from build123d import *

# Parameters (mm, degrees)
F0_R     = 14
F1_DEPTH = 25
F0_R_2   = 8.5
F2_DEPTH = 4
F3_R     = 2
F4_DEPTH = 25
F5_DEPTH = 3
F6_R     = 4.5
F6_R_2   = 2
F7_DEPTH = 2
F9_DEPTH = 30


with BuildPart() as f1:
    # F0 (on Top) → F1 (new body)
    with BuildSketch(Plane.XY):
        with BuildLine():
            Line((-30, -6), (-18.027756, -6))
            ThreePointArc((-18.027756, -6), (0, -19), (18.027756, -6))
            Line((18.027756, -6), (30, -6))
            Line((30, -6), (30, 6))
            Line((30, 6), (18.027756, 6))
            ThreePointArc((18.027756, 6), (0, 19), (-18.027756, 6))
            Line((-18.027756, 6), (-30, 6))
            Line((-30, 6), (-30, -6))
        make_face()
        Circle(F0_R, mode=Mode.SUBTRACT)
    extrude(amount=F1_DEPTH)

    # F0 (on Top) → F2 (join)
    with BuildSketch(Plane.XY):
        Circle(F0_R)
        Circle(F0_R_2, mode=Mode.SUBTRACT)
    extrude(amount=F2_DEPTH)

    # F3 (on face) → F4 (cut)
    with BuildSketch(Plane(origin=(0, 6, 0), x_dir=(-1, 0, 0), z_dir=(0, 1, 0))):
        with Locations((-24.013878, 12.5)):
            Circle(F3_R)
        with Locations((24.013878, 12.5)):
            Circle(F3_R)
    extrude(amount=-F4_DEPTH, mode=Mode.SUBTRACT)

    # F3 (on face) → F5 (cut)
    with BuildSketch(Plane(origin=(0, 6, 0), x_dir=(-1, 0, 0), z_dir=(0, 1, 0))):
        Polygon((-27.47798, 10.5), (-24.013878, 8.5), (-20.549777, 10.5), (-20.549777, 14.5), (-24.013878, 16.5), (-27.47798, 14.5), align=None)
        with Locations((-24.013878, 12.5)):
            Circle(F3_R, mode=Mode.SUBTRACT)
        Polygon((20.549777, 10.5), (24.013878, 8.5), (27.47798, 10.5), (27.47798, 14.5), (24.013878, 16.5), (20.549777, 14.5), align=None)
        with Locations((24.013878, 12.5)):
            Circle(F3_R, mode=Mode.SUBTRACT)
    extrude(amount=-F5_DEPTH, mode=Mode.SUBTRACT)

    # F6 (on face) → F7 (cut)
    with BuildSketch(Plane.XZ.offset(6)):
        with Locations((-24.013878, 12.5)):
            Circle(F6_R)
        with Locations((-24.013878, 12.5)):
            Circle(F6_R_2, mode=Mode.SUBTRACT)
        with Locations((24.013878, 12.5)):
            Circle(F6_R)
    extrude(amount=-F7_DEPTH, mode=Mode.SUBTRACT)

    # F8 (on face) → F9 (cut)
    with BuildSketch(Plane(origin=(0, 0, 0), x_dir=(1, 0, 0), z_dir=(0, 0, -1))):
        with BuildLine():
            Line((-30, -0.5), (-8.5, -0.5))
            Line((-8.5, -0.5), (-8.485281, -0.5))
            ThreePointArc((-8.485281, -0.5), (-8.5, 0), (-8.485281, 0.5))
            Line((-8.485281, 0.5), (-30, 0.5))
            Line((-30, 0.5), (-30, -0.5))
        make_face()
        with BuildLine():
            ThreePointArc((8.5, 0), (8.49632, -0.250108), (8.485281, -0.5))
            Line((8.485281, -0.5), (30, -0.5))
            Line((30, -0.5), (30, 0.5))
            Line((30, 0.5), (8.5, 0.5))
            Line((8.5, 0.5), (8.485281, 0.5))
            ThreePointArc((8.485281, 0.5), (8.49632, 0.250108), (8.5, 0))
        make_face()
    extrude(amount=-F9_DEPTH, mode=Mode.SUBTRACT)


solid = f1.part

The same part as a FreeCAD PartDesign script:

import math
import FreeCAD as App
import Part
import Sketcher
Q = App.Units.Quantity


def add_polygon(sketch, points):
    """Adds a closed chain of lines whose ends are joined by coincident constraints."""
    first, n = sketch.GeometryCount, len(points)
    for a, b in zip(points, points[1:] + points[:1]):
        sketch.addGeometry(Part.LineSegment(App.Vector(*a, 0), App.Vector(*b, 0)), False)
    for i in range(n):
        sketch.addConstraint(Sketcher.Constraint("Coincident", first + i, 2, first + (i + 1) % n, 1))

doc = App.newDocument("Part")
body = doc.addObject("PartDesign::Body", "Body")
body.AllowCompound = True

sketch1 = body.newObject("Sketcher::SketchObject", "Sketch")
sketch1.AttachmentSupport = (doc.getObject("XY_Plane"), [""])
sketch1.MapMode = "FlatFace"
sketch1.addGeometry([
    Part.LineSegment(App.Vector(-30, -6, 0), App.Vector(-18.027756, -6, 0)),
    Part.ArcOfCircle(Part.Circle(App.Vector(0, -0.000001, 0), App.Vector(0, 0, 1), 18.999999), math.radians(-161.591521), math.radians(-18.408479)),
    Part.LineSegment(App.Vector(18.027756, -6, 0), App.Vector(30, -6, 0)),
    Part.LineSegment(App.Vector(30, -6, 0), App.Vector(30, 6, 0)),
    Part.LineSegment(App.Vector(30, 6, 0), App.Vector(18.027756, 6, 0)),
    Part.ArcOfCircle(Part.Circle(App.Vector(0, 0.000001, 0), App.Vector(0, 0, 1), 18.999999), math.radians(18.408479), math.radians(161.591521)),
    Part.LineSegment(App.Vector(-18.027756, 6, 0), App.Vector(-30, 6, 0)),
    Part.LineSegment(App.Vector(-30, 6, 0), App.Vector(-30, -6, 0)),
    Part.Circle(App.Vector(0, 0, 0), App.Vector(0, 0, 1), 14),
], False)
sketch1.addConstraint([
    Sketcher.Constraint("Coincident", 0, 2, 1, 1),
    Sketcher.Constraint("Coincident", 1, 2, 2, 1),
    Sketcher.Constraint("Coincident", 2, 2, 3, 1),
    Sketcher.Constraint("Coincident", 3, 2, 4, 1),
    Sketcher.Constraint("Coincident", 4, 2, 5, 1),
    Sketcher.Constraint("Coincident", 5, 2, 6, 1),
    Sketcher.Constraint("Coincident", 6, 2, 7, 1),
    Sketcher.Constraint("Coincident", 7, 2, 0, 1),
    Sketcher.Constraint("Horizontal", 0),
    Sketcher.Constraint("Horizontal", 2),
    Sketcher.Constraint("Vertical", 3),
    Sketcher.Constraint("Horizontal", 4),
    Sketcher.Constraint("Horizontal", 6),
    Sketcher.Constraint("Vertical", 7),
    Sketcher.Constraint("Coincident", 1, 3, -1, 1),
    Sketcher.Constraint("Coincident", 5, 3, -1, 1),
    Sketcher.Constraint("Coincident", 8, 3, -1, 1),
    Sketcher.Constraint("Equal", 1, 5),
    Sketcher.Constraint("Symmetric", 2, 2, 6, 2, -1, 1),
    Sketcher.Constraint("Horizontal", 0, 2, 1, 2),
    Sketcher.Constraint("Horizontal", 4, 2, 5, 2),
    Sketcher.Constraint("Diameter", 8, 28.0),
    Sketcher.Constraint("Radius", 1, 18.999999),
    Sketcher.Constraint("DistanceY", 3, 1, 3, 2, 12.0),
    Sketcher.Constraint("DistanceX", -1, 1, 2, 2, 30.0),
])
pad1 = body.newObject("PartDesign::Pad", "Pad")
pad1.Profile = sketch1
pad1.Length = 25

sketch2 = body.newObject("Sketcher::SketchObject", "Sketch001")
sketch2.AttachmentSupport = (doc.getObject("XY_Plane"), [""])
sketch2.MapMode = "FlatFace"
sketch2.addGeometry([
    Part.Circle(App.Vector(0, 0, 0), App.Vector(0, 0, 1), 14),
    Part.Circle(App.Vector(0, 0, 0), App.Vector(0, 0, 1), 8.5),
], False)
sketch2.addConstraint([
    Sketcher.Constraint("Coincident", 0, 3, -1, 1),
    Sketcher.Constraint("Coincident", 1, 3, -1, 1),
    Sketcher.Constraint("Diameter", 0, 28.0),
    Sketcher.Constraint("Diameter", 1, 17.0),
])
pad2 = body.newObject("PartDesign::Pad", "Pad001")
pad2.Profile = sketch2
pad2.Length = 4

sketch3 = body.newObject("Sketcher::SketchObject", "Sketch002")
sketch3.AttachmentSupport = (doc.getObject("XZ_Plane"), [""])
sketch3.MapMode = "FlatFace"
sketch3.AttachmentOffset = App.Placement(App.Vector(0, 0, -6), App.Rotation())
sketch3.addGeometry([
    Part.Circle(App.Vector(24.013878, 12.5, 0), App.Vector(0, 0, 1), 2),
    Part.Circle(App.Vector(-24.013878, 12.5, 0), App.Vector(0, 0, 1), 2),
], False)
sketch3.addConstraint([
    Sketcher.Constraint("Equal", 0, 1),
    Sketcher.Constraint("Symmetric", 0, 3, 1, 3, -2),
    Sketcher.Constraint("Diameter", 0, 4.0),
    Sketcher.Constraint("DistanceY", -1, 1, 0, 3, 12.5),
    Sketcher.Constraint("DistanceX", -1, 1, 0, 3, 24.013878),
])
pocket1 = body.newObject("PartDesign::Pocket", "Pocket")
pocket1.Profile = sketch3
pocket1.Length = 25
pocket1.Reversed = True

sketch4 = body.newObject("Sketcher::SketchObject", "Sketch003")
sketch4.AttachmentSupport = (doc.getObject("XZ_Plane"), [""])
sketch4.MapMode = "FlatFace"
sketch4.AttachmentOffset = App.Placement(App.Vector(0, 0, -6), App.Rotation())
add_polygon(sketch4, [(27.47798, 10.5), (24.013878, 8.5), (20.549777, 10.5), (20.549777, 14.5), (24.013878, 16.5), (27.47798, 14.5)])
sketch4.addGeometry(Part.Circle(App.Vector(24.013878, 12.5, 0), App.Vector(0, 0, 1), 2), False)
add_polygon(sketch4, [(-20.549777, 10.5), (-24.013878, 8.5), (-27.47798, 10.5), (-27.47798, 14.5), (-24.013878, 16.5), (-20.549777, 14.5)])
sketch4.addGeometry(Part.Circle(App.Vector(-24.013878, 12.5, 0), App.Vector(0, 0, 1), 2), False)
sketch4.addConstraint([
    Sketcher.Constraint("Vertical", 2),
    Sketcher.Constraint("Vertical", 5),
    Sketcher.Constraint("Vertical", 9),
    Sketcher.Constraint("Vertical", 12),
    Sketcher.Constraint("Equal", 6, 13),
    Sketcher.Constraint("Symmetric", 6, 3, 13, 3, -2),
    Sketcher.Constraint("Symmetric", 0, 2, 7, 2, -2),
    Sketcher.Constraint("Symmetric", 5, 2, 8, 2, -2),
    Sketcher.Constraint("Symmetric", 3, 2, 10, 2, -2),
    Sketcher.Constraint("Symmetric", 2, 2, 11, 2, -2),
    Sketcher.Constraint("Parallel", 0, 3),
    Sketcher.Constraint("Parallel", 1, 4),
    Sketcher.Constraint("Parallel", 3, 7),
    Sketcher.Constraint("Parallel", 4, 8),
    Sketcher.Constraint("Parallel", 7, 10),
    Sketcher.Constraint("Horizontal", 2, 2, 4, 2),
    Sketcher.Constraint("Horizontal", 1, 2, 5, 2),
    Sketcher.Constraint("Vertical", 6, 3, 0, 2),
    Sketcher.Constraint("Diameter", 6, 4.0),
    Sketcher.Constraint("DistanceY", 2, 1, 2, 2, 4.0),
    Sketcher.Constraint("Angle", 0, Q("-150.000003 deg")),
    Sketcher.Constraint("Distance", 0, 4.0),
    Sketcher.Constraint("DistanceY", 0, 2, 6, 3, 4.0),
    Sketcher.Constraint("DistanceY", -1, 1, 6, 3, 12.5),
    Sketcher.Constraint("DistanceX", -1, 1, 4, 2, 27.47798),
])
pocket2 = body.newObject("PartDesign::Pocket", "Pocket001")
pocket2.Profile = sketch4
pocket2.Length = 3
pocket2.Reversed = True

sketch5 = body.newObject("Sketcher::SketchObject", "Sketch004")
sketch5.AttachmentSupport = (doc.getObject("XZ_Plane"), [""])
sketch5.MapMode = "FlatFace"
sketch5.AttachmentOffset = App.Placement(App.Vector(0, 0, 6), App.Rotation())
sketch5.addGeometry([
    Part.Circle(App.Vector(-24.013878, 12.5, 0), App.Vector(0, 0, 1), 4.5),
    Part.Circle(App.Vector(-24.013878, 12.5, 0), App.Vector(0, 0, 1), 2),
    Part.Circle(App.Vector(24.013878, 12.5, 0), App.Vector(0, 0, 1), 4.5),
], False)
sketch5.addConstraint([
    Sketcher.Constraint("Coincident", 1, 3, 0, 3),
    Sketcher.Constraint("Equal", 0, 2),
    Sketcher.Constraint("Symmetric", 0, 3, 2, 3, -2),
    Sketcher.Constraint("Diameter", 0, 9.0),
    Sketcher.Constraint("Diameter", 1, 4.0),
    Sketcher.Constraint("DistanceY", -1, 1, 0, 3, 12.5),
    Sketcher.Constraint("DistanceX", 0, 3, -1, 1, 24.013878),
])
pocket3 = body.newObject("PartDesign::Pocket", "Pocket002")
pocket3.Profile = sketch5
pocket3.Length = 2

sketch6 = body.newObject("Sketcher::SketchObject", "Sketch005")
sketch6.AttachmentSupport = (doc.getObject("XY_Plane"), [""])
sketch6.MapMode = "FlatFace"
sketch6.addGeometry([
    Part.LineSegment(App.Vector(-30, 0.5, 0), App.Vector(-8.485281, 0.5, 0)),
    Part.ArcOfCircle(Part.Circle(App.Vector(-0.000216, 0, 0), App.Vector(0, 0, 1), 8.499784), math.radians(176.627628), math.radians(183.372372)),
    Part.LineSegment(App.Vector(-8.485281, -0.5, 0), App.Vector(-30, -0.5, 0)),
    Part.LineSegment(App.Vector(-30, -0.5, 0), App.Vector(-30, 0.5, 0)),
    Part.ArcOfCircle(Part.Circle(App.Vector(0.001457, 0.000037, 0), App.Vector(0, 0, 1), 8.498543), math.radians(-0.000246), math.radians(3.372619)),
    Part.LineSegment(App.Vector(8.485281, 0.5, 0), App.Vector(30, 0.5, 0)),
    Part.LineSegment(App.Vector(30, 0.5, 0), App.Vector(30, -0.5, 0)),
    Part.LineSegment(App.Vector(30, -0.5, 0), App.Vector(8.485281, -0.5, 0)),
    Part.ArcOfCircle(Part.Circle(App.Vector(0.001457, -0.000037, 0), App.Vector(0, 0, 1), 8.498543), math.radians(-3.372619), math.radians(0.000246)),
], False)
sketch6.addConstraint([
    Sketcher.Constraint("Coincident", 0, 2, 1, 1),
    Sketcher.Constraint("Coincident", 1, 2, 2, 1),
    Sketcher.Constraint("Coincident", 2, 2, 3, 1),
    Sketcher.Constraint("Coincident", 3, 2, 0, 1),
    Sketcher.Constraint("Coincident", 4, 2, 5, 1),
    Sketcher.Constraint("Coincident", 5, 2, 6, 1),
    Sketcher.Constraint("Coincident", 6, 2, 7, 1),
    Sketcher.Constraint("Coincident", 7, 2, 8, 1),
    Sketcher.Constraint("Coincident", 8, 2, 4, 1),
    Sketcher.Constraint("Horizontal", 0),
    Sketcher.Constraint("Horizontal", 2),
    Sketcher.Constraint("Vertical", 3),
    Sketcher.Constraint("Horizontal", 5),
    Sketcher.Constraint("Vertical", 6),
    Sketcher.Constraint("Horizontal", 7),
    Sketcher.Constraint("Equal", 4, 8),
    Sketcher.Constraint("Symmetric", 1, 2, 4, 2, -1, 1),
    Sketcher.Constraint("Symmetric", 3, 2, 6, 2, -1, 1),
    Sketcher.Constraint("Symmetric", 0, 2, 4, 2, -2),
    Sketcher.Constraint("PointOnObject", 8, 2, -1),
    Sketcher.Constraint("Vertical", 4, 2, 7, 2),
    Sketcher.Constraint("DistanceY", 3, 1, 3, 2, 1.0),
    Sketcher.Constraint("DistanceX", 2, 2, -1, 1, 30.0),
    Sketcher.Constraint("DistanceX", -1, 1, 8, 2, 8.5),
    Sketcher.Constraint("Radius", 1, 8.499784),
    Sketcher.Constraint("Radius", 4, 8.498543),
    Sketcher.Constraint("DistanceX", 0, 1, 0, 2, 21.514719),
])
pocket4 = body.newObject("PartDesign::Pocket", "Pocket003")
pocket4.Profile = sketch6
pocket4.Length = 30
pocket4.Reversed = True

doc.recompute()
